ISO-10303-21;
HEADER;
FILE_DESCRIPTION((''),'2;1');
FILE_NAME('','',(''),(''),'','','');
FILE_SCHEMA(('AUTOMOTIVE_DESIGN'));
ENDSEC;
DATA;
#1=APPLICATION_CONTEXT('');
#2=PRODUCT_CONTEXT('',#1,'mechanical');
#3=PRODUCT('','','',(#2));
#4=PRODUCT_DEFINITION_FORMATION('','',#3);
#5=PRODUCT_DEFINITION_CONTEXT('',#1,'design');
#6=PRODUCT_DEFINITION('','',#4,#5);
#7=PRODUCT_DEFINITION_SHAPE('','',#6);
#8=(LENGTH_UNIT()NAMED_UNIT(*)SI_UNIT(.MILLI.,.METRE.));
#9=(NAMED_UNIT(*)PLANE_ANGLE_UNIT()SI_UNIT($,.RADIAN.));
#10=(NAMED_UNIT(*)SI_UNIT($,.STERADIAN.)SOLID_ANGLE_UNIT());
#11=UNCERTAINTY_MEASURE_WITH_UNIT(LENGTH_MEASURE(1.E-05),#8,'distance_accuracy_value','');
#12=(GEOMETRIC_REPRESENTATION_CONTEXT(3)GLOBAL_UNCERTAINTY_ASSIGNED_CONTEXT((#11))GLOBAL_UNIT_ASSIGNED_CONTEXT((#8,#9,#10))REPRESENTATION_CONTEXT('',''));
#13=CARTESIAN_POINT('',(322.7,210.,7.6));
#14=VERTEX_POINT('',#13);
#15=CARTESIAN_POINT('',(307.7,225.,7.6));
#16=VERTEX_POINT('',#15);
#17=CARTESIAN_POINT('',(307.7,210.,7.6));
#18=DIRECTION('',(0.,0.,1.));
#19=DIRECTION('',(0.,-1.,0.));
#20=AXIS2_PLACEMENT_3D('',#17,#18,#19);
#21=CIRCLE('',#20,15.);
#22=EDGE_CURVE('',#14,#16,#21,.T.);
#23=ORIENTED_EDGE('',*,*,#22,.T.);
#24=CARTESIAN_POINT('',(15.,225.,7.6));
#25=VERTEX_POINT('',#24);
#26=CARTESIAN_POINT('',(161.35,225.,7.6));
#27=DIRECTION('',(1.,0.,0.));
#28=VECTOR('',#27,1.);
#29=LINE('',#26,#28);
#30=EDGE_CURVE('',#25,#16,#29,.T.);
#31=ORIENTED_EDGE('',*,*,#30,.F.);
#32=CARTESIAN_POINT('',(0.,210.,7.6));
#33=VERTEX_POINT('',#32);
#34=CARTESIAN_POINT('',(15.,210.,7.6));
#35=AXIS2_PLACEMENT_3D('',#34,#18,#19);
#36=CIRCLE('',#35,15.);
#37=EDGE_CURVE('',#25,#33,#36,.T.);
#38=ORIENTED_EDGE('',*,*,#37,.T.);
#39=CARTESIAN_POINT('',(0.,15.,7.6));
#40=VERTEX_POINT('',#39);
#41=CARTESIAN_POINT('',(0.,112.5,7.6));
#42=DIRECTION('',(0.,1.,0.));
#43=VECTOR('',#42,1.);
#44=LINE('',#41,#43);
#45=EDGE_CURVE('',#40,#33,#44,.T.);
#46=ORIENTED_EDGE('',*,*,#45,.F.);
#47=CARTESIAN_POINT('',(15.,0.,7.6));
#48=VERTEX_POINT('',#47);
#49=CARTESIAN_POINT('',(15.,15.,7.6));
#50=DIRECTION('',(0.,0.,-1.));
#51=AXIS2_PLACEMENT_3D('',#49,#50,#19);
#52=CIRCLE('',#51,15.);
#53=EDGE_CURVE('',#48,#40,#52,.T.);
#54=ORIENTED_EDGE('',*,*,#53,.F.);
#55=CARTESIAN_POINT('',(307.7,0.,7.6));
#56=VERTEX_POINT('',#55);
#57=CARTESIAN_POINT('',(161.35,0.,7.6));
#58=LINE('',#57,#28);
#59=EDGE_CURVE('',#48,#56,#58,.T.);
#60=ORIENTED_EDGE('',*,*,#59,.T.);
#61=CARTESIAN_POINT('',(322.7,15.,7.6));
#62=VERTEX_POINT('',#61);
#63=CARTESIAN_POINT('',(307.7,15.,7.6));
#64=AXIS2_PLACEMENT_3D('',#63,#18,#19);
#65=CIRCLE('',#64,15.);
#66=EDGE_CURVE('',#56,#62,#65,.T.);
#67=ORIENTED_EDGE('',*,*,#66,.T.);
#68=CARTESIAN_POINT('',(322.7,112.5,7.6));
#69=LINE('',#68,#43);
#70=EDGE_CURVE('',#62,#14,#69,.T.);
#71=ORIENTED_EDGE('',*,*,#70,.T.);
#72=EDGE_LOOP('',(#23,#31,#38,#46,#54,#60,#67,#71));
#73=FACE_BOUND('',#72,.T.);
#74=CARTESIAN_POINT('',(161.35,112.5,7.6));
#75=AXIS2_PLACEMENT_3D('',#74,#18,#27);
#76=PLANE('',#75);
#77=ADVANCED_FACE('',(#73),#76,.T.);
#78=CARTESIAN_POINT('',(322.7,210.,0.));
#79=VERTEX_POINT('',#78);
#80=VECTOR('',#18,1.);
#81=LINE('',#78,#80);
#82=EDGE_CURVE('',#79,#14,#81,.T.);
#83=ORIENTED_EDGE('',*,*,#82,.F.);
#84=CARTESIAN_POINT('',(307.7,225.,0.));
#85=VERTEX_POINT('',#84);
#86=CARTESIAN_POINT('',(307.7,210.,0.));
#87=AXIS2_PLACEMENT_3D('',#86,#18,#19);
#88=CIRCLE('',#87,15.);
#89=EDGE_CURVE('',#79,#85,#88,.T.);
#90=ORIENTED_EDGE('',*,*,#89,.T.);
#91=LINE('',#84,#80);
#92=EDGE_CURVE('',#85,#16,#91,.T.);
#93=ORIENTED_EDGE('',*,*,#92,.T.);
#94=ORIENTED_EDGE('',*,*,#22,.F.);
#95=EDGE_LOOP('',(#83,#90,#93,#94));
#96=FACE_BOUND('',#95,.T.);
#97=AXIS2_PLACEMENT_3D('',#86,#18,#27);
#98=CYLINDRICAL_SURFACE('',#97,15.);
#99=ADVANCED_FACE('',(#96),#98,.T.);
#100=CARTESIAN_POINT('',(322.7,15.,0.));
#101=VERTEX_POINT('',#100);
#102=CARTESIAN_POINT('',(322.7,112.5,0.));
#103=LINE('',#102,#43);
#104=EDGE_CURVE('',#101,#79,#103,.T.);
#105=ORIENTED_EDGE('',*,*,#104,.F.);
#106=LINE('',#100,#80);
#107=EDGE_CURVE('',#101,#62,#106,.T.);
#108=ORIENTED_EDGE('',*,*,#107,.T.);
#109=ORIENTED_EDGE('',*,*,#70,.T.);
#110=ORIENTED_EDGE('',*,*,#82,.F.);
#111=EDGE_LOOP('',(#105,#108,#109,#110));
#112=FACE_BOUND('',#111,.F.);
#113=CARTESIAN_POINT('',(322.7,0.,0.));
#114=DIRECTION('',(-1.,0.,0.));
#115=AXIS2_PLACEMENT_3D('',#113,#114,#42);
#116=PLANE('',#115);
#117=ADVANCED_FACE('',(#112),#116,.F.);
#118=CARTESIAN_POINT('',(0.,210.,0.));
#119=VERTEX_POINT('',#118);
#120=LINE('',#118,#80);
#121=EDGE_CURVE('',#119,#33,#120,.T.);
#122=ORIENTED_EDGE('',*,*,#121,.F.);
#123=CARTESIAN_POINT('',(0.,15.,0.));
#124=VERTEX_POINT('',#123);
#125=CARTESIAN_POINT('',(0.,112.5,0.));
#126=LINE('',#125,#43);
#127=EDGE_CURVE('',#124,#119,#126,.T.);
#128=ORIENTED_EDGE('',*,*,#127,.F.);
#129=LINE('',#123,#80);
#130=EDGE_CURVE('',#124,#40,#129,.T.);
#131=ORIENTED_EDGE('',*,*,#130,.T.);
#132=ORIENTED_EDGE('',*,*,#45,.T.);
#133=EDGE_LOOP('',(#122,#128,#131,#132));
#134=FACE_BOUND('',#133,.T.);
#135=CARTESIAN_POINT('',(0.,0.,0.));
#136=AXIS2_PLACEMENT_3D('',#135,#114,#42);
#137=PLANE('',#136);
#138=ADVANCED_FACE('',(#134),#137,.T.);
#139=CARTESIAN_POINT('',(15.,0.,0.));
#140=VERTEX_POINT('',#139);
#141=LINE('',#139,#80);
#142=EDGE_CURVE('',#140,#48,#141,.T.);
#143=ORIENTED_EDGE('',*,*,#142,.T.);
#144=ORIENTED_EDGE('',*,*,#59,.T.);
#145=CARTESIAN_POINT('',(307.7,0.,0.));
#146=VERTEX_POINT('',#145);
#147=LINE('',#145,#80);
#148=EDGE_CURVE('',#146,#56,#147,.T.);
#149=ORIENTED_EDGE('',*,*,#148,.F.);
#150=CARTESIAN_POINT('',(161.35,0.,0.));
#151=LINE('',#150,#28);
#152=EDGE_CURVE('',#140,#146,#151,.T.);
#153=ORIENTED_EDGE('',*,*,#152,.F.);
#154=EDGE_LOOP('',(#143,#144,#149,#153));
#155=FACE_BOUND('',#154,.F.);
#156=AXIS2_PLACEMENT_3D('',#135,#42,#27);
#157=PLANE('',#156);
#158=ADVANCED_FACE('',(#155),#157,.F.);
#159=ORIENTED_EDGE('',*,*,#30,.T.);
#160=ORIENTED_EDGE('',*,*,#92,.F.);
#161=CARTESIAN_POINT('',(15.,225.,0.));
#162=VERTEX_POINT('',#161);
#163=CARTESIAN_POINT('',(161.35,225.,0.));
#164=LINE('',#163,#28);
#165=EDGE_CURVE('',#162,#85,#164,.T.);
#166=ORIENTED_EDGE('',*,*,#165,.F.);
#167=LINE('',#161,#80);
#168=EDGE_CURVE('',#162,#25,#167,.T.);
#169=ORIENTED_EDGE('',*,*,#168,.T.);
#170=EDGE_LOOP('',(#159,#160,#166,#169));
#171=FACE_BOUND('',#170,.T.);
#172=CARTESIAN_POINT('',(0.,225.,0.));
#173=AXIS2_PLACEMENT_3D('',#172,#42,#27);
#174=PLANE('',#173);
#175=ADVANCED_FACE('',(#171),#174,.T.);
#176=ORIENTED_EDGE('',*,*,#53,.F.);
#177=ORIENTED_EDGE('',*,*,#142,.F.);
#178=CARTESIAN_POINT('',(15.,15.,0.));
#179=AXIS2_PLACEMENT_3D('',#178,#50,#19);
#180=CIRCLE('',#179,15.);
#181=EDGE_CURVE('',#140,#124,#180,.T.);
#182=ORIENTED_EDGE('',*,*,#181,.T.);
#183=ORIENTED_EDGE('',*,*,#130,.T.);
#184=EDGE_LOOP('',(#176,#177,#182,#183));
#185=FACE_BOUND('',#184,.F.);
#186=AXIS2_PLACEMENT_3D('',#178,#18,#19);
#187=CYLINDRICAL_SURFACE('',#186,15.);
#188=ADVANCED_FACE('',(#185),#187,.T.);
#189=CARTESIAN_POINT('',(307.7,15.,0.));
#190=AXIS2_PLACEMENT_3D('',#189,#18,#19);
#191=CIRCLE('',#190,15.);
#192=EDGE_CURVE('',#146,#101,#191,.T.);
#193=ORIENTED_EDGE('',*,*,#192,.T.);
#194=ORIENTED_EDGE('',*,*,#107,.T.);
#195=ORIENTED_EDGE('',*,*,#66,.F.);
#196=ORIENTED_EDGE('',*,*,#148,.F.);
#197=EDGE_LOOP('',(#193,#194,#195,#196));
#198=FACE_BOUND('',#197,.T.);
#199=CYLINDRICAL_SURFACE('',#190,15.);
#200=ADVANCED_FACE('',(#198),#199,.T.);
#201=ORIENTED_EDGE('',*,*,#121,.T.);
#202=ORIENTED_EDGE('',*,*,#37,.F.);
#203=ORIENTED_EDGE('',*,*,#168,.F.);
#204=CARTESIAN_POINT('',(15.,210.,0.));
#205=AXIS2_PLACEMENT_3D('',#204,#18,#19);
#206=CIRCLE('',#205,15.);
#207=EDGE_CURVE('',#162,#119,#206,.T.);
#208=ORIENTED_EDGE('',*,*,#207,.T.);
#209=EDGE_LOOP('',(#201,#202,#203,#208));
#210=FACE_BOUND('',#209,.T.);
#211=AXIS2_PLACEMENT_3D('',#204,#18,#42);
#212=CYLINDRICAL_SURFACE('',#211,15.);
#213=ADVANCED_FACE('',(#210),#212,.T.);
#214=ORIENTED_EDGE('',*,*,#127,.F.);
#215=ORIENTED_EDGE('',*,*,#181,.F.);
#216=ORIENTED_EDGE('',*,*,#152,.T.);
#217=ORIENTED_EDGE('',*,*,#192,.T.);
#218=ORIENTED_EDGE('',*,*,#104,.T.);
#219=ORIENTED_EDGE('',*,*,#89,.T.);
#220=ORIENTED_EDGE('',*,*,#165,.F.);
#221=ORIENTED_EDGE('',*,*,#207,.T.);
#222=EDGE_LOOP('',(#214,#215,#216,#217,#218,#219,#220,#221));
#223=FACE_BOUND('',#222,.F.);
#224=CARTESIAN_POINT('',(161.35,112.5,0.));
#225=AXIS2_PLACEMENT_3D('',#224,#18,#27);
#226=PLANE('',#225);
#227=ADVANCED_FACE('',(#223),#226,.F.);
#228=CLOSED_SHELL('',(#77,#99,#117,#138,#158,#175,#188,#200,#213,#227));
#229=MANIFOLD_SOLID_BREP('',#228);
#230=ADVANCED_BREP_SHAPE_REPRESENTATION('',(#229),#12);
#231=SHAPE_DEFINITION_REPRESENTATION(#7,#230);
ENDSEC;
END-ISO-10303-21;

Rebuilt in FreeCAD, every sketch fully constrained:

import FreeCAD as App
import Part
import Sketcher
Q = App.Units.Quantity


def edges_at(feature, points):
    """Names of the edges that pass closest to the given points."""
    edges = feature.Shape.Edges
    near = lambda p: min(range(len(edges)), key=lambda i: edges[i].distToShape(Part.Vertex(*p))[0])
    return sorted({f"Edge{near(p) + 1}" for p in points})


def add_polygon(sketch, points):
    """Adds a closed chain of lines whose ends are joined by coincident constraints."""
    first, n = sketch.GeometryCount, len(points)
    for a, b in zip(points, points[1:] + points[:1]):
        sketch.addGeometry(Part.LineSegment(App.Vector(*a, 0), App.Vector(*b, 0)), False)
    for i in range(n):
        sketch.addConstraint(Sketcher.Constraint("Coincident", first + i, 2, first + (i + 1) % n, 1))

doc = App.newDocument("Part")
params = doc.addObject("Spreadsheet::Sheet", "Params")
for row, (alias, value) in enumerate([
    ("sketch1_height", "225 mm"),
    ("sketch1_width", "322.7 mm"),
    ("pad1_length", "7.6 mm"),
    ("fillet_radius", "15 mm"),
    ("fillet2_radius", "15 mm"),
    ("fillet3_radius", "15 mm"),
    ("fillet4_radius", "15 mm"),
], start=1):
    params.set(f"A{row}", alias)
    params.set(f"B{row}", "=" + value)
    params.setAlias(f"B{row}", alias)

body = doc.addObject("PartDesign::Body", "Body")

# Sketch on XY plane
sketch1 = body.newObject("Sketcher::SketchObject", "Sketch")
sketch1.AttachmentSupport = (doc.getObject("XY_Plane"), [""])
sketch1.MapMode = "FlatFace"
add_polygon(sketch1, [(0, 225), (0, 0), (323, 0), (323, 225)])  # lines 0-3
sketch1.addConstraint([
    Sketcher.Constraint("Vertical", 0),
    Sketcher.Constraint("Horizontal", 1),
    Sketcher.Constraint("Vertical", 2),
    Sketcher.Constraint("Horizontal", 3),
    Sketcher.Constraint("Coincident", 0, 2, -1, 1),
    Sketcher.Constraint("DistanceY", 0, 2, 0, 1, Q("225 mm")),
    Sketcher.Constraint("DistanceX", 1, 1, 1, 2, Q("322.7 mm")),
])
sketch1.setExpression("Constraints[9]", "Params.sketch1_height")
sketch1.setExpression("Constraints[10]", "Params.sketch1_width")
pad1 = body.newObject("PartDesign::Pad", "Pad")
pad1.Profile = sketch1
pad1.setExpression("Length", "Params.pad1_length")
doc.recompute()

fillet = body.newObject("PartDesign::Fillet", "Fillet")
fillet.Base = (pad1, edges_at(pad1, [(322.7, 0, 3.8)]))
fillet.setExpression("Radius", "Params.fillet_radius")
doc.recompute()

fillet2 = body.newObject("PartDesign::Fillet", "Fillet001")
fillet2.Base = (fillet, edges_at(fillet, [(0, 0, 3.8)]))
fillet2.setExpression("Radius", "Params.fillet2_radius")
doc.recompute()

fillet3 = body.newObject("PartDesign::Fillet", "Fillet002")
fillet3.Base = (fillet2, edges_at(fillet2, [(322.7, 225, 3.8)]))
fillet3.setExpression("Radius", "Params.fillet3_radius")
doc.recompute()

fillet4 = body.newObject("PartDesign::Fillet", "Fillet003")
fillet4.Base = (fillet3, edges_at(fillet3, [(0, 225, 3.8)]))
fillet4.setExpression("Radius", "Params.fillet4_radius")

doc.recompute()
